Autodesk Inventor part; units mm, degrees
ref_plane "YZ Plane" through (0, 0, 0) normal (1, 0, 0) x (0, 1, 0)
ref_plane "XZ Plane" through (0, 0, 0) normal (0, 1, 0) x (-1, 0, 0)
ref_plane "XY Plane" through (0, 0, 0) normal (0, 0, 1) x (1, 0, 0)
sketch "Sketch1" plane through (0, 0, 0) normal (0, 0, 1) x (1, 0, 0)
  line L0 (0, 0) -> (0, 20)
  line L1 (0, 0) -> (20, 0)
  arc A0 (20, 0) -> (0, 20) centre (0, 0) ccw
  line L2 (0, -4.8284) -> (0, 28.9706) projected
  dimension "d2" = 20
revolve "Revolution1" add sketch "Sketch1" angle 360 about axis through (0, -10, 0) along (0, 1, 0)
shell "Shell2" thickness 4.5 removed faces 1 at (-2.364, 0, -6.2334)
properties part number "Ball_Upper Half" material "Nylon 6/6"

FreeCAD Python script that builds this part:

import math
import FreeCAD as App
import Part
import Sketcher
from FreeCAD import Vector
Q = App.Units.Quantity


def faces_at(feature, points):
    """Names of the faces that lie closest to the given points."""
    faces = feature.Shape.Faces
    near = lambda p: min(range(len(faces)), key=lambda i: faces[i].distToShape(Part.Vertex(*p))[0])
    return sorted({f"Face{near(p) + 1}" for p in points})

doc = App.newDocument("Part")
body = doc.addObject("PartDesign::Body", "Body")

# Sketch on XY plane
sketch1 = doc.addObject("Sketcher::SketchObject", "Sketch")
body.addObject(sketch1)
sketch1.AttachmentSupport = (doc.XY_Plane, [""])
sketch1.MapMode = "FlatFace"
sketch1.addGeometry(Part.LineSegment(Vector(0, 20, 0), Vector(0, 0, 0)), False)
sketch1.addGeometry(Part.LineSegment(Vector(0, 0, 0), Vector(20, 0, 0)), False)
sketch1.addGeometry(Part.ArcOfCircle(Part.Circle(Vector(0, 0, 0), Vector(0, 0, 1), 20), math.radians(0), math.radians(90)), False)
sketch1.addConstraint(Sketcher.Constraint("Coincident", 0, 2, 1, 1))
sketch1.addConstraint(Sketcher.Constraint("Coincident", 1, 2, 2, 1))
sketch1.addConstraint(Sketcher.Constraint("Coincident", 2, 2, 0, 1))
sketch1.addConstraint(Sketcher.Constraint("Vertical", 0))
sketch1.addConstraint(Sketcher.Constraint("Horizontal", 1))
sketch1.addConstraint(Sketcher.Constraint("Coincident", 2, 3, -1, 1))
sketch1.addConstraint(Sketcher.Constraint("Coincident", 0, 2, -1, 1))
sketch1.addConstraint(Sketcher.Constraint("Radius", 2, Q("20 mm")))
revolution = doc.addObject("PartDesign::Revolution", "Revolution")
body.addObject(revolution)
revolution.Profile = sketch1
revolution.ReferenceAxis = (sketch1, ["V_Axis"])
revolution.Angle = 360
doc.recompute()

thickness = doc.addObject("PartDesign::Thickness", "Thickness")
body.addObject(thickness)
thickness.Base = (revolution, faces_at(revolution, [(-2.364, 0, -6.233)]))
thickness.Value = 4.5
thickness.Reversed = True
thickness.Join = "Intersection"

doc.recompute()
